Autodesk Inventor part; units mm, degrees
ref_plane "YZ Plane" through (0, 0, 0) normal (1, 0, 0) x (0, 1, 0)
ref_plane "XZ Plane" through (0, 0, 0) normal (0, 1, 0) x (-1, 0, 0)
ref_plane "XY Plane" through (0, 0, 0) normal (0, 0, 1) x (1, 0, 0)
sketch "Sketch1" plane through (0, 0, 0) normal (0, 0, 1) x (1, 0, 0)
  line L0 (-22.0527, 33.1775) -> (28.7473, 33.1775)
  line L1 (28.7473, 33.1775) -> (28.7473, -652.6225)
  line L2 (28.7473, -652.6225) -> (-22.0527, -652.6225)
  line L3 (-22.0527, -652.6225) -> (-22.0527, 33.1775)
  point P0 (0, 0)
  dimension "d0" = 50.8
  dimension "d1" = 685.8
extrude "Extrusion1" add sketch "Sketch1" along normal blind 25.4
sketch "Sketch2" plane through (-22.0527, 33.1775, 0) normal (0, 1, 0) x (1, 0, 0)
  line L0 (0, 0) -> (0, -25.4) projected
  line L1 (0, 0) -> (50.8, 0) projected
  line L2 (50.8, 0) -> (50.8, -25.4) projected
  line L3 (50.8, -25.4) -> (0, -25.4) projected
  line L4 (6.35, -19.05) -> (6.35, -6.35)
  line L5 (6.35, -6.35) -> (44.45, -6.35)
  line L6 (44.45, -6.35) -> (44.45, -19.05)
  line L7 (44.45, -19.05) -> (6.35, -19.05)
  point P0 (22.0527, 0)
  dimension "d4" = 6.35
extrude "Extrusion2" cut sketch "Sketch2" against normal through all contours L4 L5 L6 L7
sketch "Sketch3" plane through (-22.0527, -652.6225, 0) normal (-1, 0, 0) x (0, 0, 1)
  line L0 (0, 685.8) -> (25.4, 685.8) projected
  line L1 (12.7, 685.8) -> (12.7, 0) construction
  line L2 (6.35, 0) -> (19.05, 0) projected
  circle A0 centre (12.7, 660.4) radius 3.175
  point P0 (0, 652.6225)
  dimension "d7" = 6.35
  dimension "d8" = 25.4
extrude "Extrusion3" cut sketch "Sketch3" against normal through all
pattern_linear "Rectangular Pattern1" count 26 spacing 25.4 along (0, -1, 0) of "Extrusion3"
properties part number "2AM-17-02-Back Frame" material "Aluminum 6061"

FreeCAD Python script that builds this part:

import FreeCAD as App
import Part
import Sketcher

V = App.Vector
Q = App.Units.Quantity

doc = App.newDocument("Part")
body = doc.addObject("PartDesign::Body", "Body")

sketch1 = body.newObject("Sketcher::SketchObject", "Sketch")
sketch1.AttachmentSupport = (doc.getObject("XY_Plane"), [""])
sketch1.MapMode = "FlatFace"
sketch1.addGeometry(Part.LineSegment(V(28.7473, 33.1775, 0), V(-22.0527, 33.1775, 0)), False)
sketch1.addGeometry(Part.LineSegment(V(-22.0527, 33.1775, 0), V(-22.0527, -652.6225, 0)), False)
sketch1.addGeometry(Part.LineSegment(V(-22.0527, -652.6225, 0), V(28.7473, -652.6225, 0)), False)
sketch1.addGeometry(Part.LineSegment(V(28.7473, -652.6225, 0), V(28.7473, 33.1775, 0)), False)
sketch1.addConstraint(Sketcher.Constraint("Coincident", 0, 2, 1, 1))
sketch1.addConstraint(Sketcher.Constraint("Coincident", 1, 2, 2, 1))
sketch1.addConstraint(Sketcher.Constraint("Coincident", 2, 2, 3, 1))
sketch1.addConstraint(Sketcher.Constraint("Coincident", 3, 2, 0, 1))
sketch1.addConstraint(Sketcher.Constraint("Horizontal", 0))
sketch1.addConstraint(Sketcher.Constraint("Vertical", 1))
sketch1.addConstraint(Sketcher.Constraint("Horizontal", 2))
sketch1.addConstraint(Sketcher.Constraint("Vertical", 3))
sketch1.addConstraint(Sketcher.Constraint("DistanceX", 0, 2, 0, 1, Q("2 in")))
sketch1.addConstraint(Sketcher.Constraint("DistanceY", 1, 2, 1, 1, Q("27 in")))
sketch1.addConstraint(Sketcher.Constraint("DistanceY", -1, 1, 0, 2, Q("1.3062 in")))
sketch1.addConstraint(Sketcher.Constraint("DistanceX", 0, 2, -1, 1, 22.0527))
pad1 = body.newObject("PartDesign::Pad", "Pad")
pad1.Profile = sketch1
pad1.Length = Q("1 in")

sketch2 = body.newObject("Sketcher::SketchObject", "Sketch001")
sketch2.AttachmentSupport = (doc.getObject("XZ_Plane"), [""])
sketch2.MapMode = "FlatFace"
sketch2.AttachmentOffset = App.Placement(V(0, 0, -1.3062008 * 25.4), App.Rotation())
sketch2.addGeometry(Part.LineSegment(V(-15.7027, 6.35, 0), V(-15.7027, 19.05, 0)), False)
sketch2.addGeometry(Part.LineSegment(V(-15.7027, 19.05, 0), V(22.3973, 19.05, 0)), False)
sketch2.addGeometry(Part.LineSegment(V(22.3973, 19.05, 0), V(22.3973, 6.35, 0)), False)
sketch2.addGeometry(Part.LineSegment(V(22.3973, 6.35, 0), V(-15.7027, 6.35, 0)), False)
sketch2.addConstraint(Sketcher.Constraint("Coincident", 0, 2, 1, 1))
sketch2.addConstraint(Sketcher.Constraint("Coincident", 1, 2, 2, 1))
sketch2.addConstraint(Sketcher.Constraint("Coincident", 2, 2, 3, 1))
sketch2.addConstraint(Sketcher.Constraint("Coincident", 3, 2, 0, 1))
sketch2.addConstraint(Sketcher.Constraint("Vertical", 0))
sketch2.addConstraint(Sketcher.Constraint("Horizontal", 1))
sketch2.addConstraint(Sketcher.Constraint("Vertical", 2))
sketch2.addConstraint(Sketcher.Constraint("Horizontal", 3))
sketch2.addConstraint(Sketcher.Constraint("DistanceY", -1, 1, 2, 2, Q("0.25 in")))
sketch2.addConstraint(Sketcher.Constraint("DistanceX", 1, 1, 1, 2, Q("1.5 in")))
sketch2.addConstraint(Sketcher.Constraint("DistanceY", 0, 1, 0, 2, Q("0.5 in")))
sketch2.addConstraint(Sketcher.Constraint("DistanceX", 0, 2, -1, 1, 15.7027))
pocket1 = body.newObject("PartDesign::Pocket", "Pocket")
pocket1.Profile = sketch2
pocket1.Type = "ThroughAll"
pocket1.Reversed = True

sketch3 = body.newObject("Sketcher::SketchObject", "Sketch002")
sketch3.AttachmentSupport = (doc.getObject("YZ_Plane"), [""])
sketch3.MapMode = "FlatFace"
sketch3.AttachmentOffset = App.Placement(V(0, 0, -22.0527), App.Rotation())
sketch3.addGeometry(Part.Circle(V(7.7775, 12.7, 0), V(0, 0, 1), 3.175), False)
sketch3.addConstraint(Sketcher.Constraint("Diameter", 0, Q("0.25 in")))
sketch3.addConstraint(Sketcher.Constraint("DistanceY", -1, 1, 0, 3, Q("0.5 in")))
sketch3.addConstraint(Sketcher.Constraint("DistanceX", -1, 1, 0, 3, Q("0.3062 in")))
pocket2 = body.newObject("PartDesign::Pocket", "Pocket001")
pocket2.Profile = sketch3
pocket2.Type = "ThroughAll"
pocket2.Reversed = True
doc.recompute()

linearpattern = body.newObject("PartDesign::LinearPattern", "LinearPattern")
linearpattern.Originals = [pocket2]
linearpattern.Direction = (doc.getObject("Y_Axis"), [""])
linearpattern.Mode = "offset"
linearpattern.Offset = Q("1 in")
linearpattern.Occurrences = 26
linearpattern.Reversed = True
body.Tip = linearpattern

doc.recompute()
